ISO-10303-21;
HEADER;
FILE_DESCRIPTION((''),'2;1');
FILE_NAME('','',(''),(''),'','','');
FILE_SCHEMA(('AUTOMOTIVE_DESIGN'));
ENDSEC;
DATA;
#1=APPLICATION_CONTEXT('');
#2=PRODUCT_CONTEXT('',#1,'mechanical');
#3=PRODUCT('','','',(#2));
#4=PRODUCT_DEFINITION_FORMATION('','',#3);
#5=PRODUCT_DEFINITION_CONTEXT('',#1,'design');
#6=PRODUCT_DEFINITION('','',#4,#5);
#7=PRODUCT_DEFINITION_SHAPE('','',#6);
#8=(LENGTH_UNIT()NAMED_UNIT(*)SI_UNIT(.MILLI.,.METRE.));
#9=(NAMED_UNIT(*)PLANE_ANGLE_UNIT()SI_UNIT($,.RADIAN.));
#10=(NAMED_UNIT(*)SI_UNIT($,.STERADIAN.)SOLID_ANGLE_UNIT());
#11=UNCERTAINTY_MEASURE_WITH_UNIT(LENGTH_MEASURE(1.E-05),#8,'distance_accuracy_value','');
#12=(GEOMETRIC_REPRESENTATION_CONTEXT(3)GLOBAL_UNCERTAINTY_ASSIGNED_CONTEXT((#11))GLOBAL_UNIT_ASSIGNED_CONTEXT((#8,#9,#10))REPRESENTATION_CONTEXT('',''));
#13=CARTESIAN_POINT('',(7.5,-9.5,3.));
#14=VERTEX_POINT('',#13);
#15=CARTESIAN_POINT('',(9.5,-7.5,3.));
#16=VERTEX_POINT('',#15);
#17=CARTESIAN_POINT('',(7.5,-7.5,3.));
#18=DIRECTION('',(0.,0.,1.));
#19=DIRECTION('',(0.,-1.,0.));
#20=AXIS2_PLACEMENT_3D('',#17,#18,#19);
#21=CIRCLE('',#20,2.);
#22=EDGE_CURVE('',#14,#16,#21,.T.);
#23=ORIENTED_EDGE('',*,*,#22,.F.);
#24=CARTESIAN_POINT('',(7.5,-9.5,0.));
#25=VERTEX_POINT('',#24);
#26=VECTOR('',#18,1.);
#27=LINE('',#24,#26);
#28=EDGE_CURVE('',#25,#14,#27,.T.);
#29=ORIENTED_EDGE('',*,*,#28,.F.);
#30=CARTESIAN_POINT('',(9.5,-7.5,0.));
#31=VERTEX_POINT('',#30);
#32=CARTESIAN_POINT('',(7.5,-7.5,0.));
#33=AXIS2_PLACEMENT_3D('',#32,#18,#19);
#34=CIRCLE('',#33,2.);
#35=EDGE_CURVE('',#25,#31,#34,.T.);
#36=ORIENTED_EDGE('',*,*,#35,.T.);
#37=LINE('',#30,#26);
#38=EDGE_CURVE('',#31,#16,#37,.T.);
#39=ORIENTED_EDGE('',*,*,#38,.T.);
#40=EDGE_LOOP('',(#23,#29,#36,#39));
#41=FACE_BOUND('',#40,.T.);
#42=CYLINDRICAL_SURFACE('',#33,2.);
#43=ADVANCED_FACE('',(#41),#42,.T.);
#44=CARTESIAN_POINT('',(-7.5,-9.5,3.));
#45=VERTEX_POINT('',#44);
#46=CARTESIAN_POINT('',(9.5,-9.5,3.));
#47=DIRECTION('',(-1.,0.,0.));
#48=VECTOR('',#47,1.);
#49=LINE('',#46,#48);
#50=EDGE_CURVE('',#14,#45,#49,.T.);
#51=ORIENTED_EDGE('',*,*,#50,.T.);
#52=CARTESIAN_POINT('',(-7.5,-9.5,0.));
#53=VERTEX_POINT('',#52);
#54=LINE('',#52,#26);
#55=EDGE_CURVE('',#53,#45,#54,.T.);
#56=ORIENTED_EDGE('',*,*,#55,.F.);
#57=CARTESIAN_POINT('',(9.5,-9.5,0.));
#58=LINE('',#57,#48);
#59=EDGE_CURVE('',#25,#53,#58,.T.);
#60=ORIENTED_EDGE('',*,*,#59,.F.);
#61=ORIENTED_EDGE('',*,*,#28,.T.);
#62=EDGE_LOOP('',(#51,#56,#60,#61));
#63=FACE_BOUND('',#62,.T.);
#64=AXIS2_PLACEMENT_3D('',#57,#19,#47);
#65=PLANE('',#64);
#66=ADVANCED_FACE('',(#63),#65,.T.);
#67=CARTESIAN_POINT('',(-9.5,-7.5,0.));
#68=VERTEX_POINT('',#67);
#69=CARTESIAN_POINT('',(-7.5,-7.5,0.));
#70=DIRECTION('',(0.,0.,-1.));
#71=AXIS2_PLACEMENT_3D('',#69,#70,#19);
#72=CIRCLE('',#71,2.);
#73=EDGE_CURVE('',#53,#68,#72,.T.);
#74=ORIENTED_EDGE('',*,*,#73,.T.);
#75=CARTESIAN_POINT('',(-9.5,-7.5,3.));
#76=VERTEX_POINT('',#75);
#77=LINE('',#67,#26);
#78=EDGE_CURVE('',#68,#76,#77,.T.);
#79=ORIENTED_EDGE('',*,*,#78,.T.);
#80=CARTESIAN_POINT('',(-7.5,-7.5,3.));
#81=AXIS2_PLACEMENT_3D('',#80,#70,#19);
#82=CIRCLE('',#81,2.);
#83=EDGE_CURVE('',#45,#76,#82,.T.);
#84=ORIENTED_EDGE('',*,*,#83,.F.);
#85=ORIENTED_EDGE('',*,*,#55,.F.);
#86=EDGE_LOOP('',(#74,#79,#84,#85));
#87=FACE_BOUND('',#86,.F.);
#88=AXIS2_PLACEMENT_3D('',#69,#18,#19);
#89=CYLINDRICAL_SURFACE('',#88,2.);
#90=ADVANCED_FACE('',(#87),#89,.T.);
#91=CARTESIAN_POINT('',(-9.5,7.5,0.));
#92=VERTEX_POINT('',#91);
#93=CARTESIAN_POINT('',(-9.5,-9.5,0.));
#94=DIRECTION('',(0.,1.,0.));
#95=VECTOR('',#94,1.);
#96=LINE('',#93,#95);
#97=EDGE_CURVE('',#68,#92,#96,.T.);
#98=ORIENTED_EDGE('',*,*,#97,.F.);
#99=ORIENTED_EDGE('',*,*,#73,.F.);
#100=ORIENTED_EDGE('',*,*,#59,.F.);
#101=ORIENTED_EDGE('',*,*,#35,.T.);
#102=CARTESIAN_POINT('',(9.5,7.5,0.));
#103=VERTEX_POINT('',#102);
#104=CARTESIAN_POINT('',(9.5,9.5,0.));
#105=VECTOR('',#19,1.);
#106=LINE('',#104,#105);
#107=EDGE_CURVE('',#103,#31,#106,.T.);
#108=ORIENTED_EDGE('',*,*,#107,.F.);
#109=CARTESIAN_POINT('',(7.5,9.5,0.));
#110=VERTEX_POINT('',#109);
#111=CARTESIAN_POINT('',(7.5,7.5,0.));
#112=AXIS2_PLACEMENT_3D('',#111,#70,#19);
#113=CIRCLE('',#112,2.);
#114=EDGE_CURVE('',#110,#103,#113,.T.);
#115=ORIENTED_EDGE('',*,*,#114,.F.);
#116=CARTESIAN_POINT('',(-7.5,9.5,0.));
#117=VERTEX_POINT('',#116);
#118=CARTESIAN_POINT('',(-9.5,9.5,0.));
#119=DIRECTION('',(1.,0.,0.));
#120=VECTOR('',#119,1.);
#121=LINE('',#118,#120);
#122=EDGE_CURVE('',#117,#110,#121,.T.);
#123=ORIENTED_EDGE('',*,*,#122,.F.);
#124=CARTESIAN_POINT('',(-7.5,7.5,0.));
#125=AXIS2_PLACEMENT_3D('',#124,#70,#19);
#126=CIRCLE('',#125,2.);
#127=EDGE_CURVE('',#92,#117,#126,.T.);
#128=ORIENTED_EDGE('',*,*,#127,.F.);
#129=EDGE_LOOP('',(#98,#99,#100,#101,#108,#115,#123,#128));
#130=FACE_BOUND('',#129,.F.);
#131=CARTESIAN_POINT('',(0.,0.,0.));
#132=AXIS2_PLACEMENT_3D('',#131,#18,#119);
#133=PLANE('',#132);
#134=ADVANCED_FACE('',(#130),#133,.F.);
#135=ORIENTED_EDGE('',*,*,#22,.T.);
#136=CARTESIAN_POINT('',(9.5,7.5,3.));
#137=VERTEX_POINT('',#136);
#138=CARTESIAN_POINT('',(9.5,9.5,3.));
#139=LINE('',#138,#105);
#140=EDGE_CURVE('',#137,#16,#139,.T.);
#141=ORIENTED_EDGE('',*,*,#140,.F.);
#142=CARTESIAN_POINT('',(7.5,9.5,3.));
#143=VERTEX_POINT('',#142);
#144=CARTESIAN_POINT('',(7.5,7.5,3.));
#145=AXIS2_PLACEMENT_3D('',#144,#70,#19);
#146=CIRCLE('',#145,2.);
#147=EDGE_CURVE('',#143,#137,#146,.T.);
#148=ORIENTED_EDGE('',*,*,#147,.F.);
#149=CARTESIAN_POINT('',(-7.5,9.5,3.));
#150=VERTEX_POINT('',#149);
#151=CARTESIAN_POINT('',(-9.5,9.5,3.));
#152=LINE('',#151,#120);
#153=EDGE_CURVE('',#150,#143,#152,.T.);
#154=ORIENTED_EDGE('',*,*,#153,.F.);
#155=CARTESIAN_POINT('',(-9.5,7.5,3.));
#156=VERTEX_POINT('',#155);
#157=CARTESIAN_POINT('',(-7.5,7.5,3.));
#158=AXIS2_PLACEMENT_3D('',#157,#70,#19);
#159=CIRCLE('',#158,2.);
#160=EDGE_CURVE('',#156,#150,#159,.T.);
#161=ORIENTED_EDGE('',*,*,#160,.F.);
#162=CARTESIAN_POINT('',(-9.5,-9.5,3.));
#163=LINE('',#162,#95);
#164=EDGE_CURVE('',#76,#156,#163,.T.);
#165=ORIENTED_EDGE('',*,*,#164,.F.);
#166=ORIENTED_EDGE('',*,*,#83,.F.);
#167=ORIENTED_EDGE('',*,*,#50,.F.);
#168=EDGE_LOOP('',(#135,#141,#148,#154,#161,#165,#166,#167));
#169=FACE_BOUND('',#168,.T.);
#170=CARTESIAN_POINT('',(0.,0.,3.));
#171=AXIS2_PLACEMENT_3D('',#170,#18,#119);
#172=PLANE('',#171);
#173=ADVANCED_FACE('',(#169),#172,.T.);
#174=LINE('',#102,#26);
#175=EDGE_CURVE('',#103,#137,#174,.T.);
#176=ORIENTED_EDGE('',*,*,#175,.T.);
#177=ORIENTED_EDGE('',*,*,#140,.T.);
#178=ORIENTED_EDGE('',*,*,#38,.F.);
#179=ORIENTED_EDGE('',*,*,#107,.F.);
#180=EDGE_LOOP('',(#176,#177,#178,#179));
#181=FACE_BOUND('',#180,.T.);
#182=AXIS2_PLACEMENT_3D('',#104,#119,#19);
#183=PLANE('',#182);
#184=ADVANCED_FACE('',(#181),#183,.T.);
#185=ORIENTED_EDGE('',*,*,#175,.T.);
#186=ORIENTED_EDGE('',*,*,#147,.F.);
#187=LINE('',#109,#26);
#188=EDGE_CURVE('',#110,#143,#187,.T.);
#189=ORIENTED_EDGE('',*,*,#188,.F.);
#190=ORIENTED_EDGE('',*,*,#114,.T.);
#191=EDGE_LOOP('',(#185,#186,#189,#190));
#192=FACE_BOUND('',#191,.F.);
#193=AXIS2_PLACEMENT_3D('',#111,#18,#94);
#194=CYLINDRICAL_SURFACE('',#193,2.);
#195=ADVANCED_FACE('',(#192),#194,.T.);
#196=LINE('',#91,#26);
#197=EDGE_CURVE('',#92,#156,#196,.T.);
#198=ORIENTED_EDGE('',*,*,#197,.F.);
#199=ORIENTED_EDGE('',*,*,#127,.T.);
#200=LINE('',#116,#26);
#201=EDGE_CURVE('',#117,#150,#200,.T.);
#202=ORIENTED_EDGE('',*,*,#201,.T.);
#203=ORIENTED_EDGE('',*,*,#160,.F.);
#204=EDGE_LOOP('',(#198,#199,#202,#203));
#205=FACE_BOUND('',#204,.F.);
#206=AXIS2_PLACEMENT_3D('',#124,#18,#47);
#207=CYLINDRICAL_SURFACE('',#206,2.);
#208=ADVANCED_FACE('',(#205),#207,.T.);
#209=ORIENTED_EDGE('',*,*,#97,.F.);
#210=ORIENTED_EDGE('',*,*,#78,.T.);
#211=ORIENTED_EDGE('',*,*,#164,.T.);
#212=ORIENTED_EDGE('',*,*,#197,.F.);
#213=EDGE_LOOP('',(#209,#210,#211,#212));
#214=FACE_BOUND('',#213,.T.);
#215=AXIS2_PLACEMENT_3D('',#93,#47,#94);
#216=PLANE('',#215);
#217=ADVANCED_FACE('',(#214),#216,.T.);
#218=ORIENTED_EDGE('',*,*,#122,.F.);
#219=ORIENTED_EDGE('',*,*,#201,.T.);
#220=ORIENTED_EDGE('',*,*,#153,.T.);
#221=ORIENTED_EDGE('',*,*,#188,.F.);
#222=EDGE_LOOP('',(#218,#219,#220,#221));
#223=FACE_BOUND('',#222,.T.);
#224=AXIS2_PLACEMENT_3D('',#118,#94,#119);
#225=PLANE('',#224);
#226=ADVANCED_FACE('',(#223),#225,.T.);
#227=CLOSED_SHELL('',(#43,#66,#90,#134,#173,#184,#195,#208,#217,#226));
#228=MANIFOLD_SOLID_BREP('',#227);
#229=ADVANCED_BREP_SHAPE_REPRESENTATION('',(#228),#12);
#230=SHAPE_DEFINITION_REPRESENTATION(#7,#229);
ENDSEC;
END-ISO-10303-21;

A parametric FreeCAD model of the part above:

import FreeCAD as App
import Part
import Sketcher
from FreeCAD import Vector
Q = App.Units.Quantity


def edges_at(feature, points):
    """Names of the edges that pass closest to the given points."""
    edges = feature.Shape.Edges
    near = lambda p: min(range(len(edges)), key=lambda i: edges[i].distToShape(Part.Vertex(*p))[0])
    return sorted({f"Edge{near(p) + 1}" for p in points})


def add_polygon(sketch, points):
    """Adds a closed chain of lines whose ends are joined by coincident constraints."""
    first, n = sketch.GeometryCount, len(points)
    for a, b in zip(points, points[1:] + points[:1]):
        sketch.addGeometry(Part.LineSegment(App.Vector(*a, 0), App.Vector(*b, 0)), False)
    for i in range(n):
        sketch.addConstraint(Sketcher.Constraint("Coincident", first + i, 2, first + (i + 1) % n, 1))

doc = App.newDocument("Part")
body = doc.addObject("PartDesign::Body", "Body")

sketch1 = body.newObject("Sketcher::SketchObject", "Sketch")
sketch1.AttachmentSupport = (doc.getObject("XY_Plane"), [""])
sketch1.MapMode = "FlatFace"
add_polygon(sketch1, [(-10, -10), (10, -10), (10, 10), (-10, 10)])
sketch1.addConstraint([
    Sketcher.Constraint("Horizontal", 0),
    Sketcher.Constraint("Vertical", 1),
    Sketcher.Constraint("Horizontal", 2),
    Sketcher.Constraint("Vertical", 3),
    Sketcher.Constraint("Symmetric", 0, 2, 2, 2, -1, 1),
    Sketcher.Constraint("Equal", 2, 1),
    Sketcher.Constraint("DistanceX", 0, 1, 0, 2, Q("19 mm")),
])
pad1 = body.newObject("PartDesign::Pad", "Pad")
pad1.Profile = sketch1
pad1.Length = 3
doc.recompute()

fillet = body.newObject("PartDesign::Fillet", "Fillet")
fillet.Base = (pad1, edges_at(pad1, [
    (-9.5, -9.5, 1.5),
    (9.5, -9.5, 1.5),
    (9.5, 9.5, 1.5),
    (-9.5, 9.5, 1.5),
]))
fillet.Radius = 2

doc.recompute()
